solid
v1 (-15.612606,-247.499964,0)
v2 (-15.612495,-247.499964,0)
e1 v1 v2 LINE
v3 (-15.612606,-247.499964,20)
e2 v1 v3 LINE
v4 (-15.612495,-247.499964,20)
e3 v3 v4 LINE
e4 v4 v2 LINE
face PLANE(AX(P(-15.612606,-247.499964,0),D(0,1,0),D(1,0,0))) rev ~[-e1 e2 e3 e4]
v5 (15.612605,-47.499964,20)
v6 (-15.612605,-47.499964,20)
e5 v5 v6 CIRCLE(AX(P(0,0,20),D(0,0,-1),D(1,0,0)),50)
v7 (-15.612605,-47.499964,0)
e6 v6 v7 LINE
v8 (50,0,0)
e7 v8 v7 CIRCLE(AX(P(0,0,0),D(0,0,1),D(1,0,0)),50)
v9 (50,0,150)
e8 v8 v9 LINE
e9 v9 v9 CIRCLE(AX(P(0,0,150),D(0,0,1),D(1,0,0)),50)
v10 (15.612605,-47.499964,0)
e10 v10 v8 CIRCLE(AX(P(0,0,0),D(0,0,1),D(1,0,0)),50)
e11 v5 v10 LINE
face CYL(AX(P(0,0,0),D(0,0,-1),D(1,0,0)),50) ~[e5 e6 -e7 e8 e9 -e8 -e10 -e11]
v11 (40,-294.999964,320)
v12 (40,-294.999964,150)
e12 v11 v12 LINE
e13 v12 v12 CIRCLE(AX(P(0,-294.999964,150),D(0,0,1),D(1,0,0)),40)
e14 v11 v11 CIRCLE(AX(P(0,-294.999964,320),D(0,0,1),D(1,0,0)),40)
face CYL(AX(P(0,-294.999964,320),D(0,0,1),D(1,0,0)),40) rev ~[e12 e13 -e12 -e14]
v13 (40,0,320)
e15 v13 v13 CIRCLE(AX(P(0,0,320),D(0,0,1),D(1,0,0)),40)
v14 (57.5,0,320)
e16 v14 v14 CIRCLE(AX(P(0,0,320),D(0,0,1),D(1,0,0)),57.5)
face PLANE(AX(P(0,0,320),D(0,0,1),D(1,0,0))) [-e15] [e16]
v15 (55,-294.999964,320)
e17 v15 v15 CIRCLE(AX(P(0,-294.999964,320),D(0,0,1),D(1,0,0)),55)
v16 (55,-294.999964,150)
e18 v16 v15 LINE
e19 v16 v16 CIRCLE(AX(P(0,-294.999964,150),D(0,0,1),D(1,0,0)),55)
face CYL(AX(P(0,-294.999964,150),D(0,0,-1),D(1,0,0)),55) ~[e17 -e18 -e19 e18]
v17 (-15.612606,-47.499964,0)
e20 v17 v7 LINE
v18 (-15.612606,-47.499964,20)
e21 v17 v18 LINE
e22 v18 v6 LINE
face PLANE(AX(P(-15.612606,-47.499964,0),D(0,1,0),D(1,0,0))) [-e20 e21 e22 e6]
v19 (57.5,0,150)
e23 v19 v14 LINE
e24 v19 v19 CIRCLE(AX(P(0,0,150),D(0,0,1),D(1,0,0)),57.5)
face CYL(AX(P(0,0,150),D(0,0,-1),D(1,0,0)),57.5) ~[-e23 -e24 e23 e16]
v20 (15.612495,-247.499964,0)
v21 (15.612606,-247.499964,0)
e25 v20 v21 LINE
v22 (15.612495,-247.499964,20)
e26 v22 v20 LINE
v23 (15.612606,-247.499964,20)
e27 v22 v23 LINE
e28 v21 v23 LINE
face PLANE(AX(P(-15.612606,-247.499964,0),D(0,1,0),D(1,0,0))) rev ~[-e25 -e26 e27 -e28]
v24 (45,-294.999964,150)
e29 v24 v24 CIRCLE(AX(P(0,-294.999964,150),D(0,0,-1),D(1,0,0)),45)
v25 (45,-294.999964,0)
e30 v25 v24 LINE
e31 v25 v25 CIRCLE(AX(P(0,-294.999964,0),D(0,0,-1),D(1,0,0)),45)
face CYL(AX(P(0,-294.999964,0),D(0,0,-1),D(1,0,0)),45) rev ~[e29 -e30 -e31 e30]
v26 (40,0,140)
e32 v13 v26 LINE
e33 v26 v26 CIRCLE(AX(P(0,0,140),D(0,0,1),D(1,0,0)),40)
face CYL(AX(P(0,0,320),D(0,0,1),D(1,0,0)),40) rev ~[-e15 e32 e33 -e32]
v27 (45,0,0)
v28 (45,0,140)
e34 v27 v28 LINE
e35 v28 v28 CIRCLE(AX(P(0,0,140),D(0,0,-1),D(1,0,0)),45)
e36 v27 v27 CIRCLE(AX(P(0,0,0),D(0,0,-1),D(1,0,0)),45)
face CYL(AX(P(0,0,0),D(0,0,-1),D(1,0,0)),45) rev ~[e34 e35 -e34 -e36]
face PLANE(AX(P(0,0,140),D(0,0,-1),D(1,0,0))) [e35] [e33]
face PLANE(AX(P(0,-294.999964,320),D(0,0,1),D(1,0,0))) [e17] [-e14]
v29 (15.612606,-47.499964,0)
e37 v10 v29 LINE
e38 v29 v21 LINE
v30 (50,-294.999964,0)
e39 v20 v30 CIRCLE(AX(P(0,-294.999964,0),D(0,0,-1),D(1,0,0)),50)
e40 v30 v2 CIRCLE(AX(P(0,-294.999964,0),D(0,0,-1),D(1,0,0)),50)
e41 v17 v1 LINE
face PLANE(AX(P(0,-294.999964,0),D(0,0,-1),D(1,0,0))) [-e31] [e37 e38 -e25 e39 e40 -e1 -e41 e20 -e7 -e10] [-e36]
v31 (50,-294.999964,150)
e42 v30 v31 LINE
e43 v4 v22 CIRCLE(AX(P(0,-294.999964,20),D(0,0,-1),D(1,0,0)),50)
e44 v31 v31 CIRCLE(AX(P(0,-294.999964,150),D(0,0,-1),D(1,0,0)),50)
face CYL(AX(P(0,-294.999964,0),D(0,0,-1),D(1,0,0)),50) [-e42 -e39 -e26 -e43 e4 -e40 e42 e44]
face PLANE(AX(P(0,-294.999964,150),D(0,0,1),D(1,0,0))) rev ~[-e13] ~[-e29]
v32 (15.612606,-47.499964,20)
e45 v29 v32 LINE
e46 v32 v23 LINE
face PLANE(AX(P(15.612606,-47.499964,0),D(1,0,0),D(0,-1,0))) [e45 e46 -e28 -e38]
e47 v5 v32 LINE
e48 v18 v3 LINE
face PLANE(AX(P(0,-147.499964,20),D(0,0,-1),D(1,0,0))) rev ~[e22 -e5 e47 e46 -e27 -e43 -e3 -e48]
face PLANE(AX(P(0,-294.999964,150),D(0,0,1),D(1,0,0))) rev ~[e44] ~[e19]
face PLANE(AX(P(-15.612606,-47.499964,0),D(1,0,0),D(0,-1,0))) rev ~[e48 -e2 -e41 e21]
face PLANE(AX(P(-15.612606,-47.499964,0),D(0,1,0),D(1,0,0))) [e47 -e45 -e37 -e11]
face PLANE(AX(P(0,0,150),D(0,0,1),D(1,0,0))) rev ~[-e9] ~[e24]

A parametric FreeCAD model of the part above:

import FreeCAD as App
import Part
import Sketcher

V = App.Vector


def add_polygon(sketch, points):
    """Adds a closed chain of lines whose ends are joined by coincident constraints."""
    first, n = sketch.GeometryCount, len(points)
    for a, b in zip(points, points[1:] + points[:1]):
        sketch.addGeometry(Part.LineSegment(App.Vector(*a, 0), App.Vector(*b, 0)), False)
    for i in range(n):
        sketch.addConstraint(Sketcher.Constraint("Coincident", first + i, 2, first + (i + 1) % n, 1))

doc = App.newDocument("Part")
params = doc.addObject("Spreadsheet::Sheet", "Params")
for row, (alias, value) in enumerate([
    ("sketch1_diameter", "100 mm"),
    ("pad1_length", "150 mm"),
    ("sketch2_diameter", "90 mm"),
    ("pocket1_length", "140 mm"),
    ("sketch3_diameter", "115 mm"),
    ("pad2_length", "170 mm"),
    ("sketch4_diameter", "80 mm"),
    ("pocket2_length", "383 mm"),
    ("sketch5_height", "200 mm"),
    ("pad3_length", "20 mm"),
    ("sketch6_diameter", "100 mm"),
    ("pad4_length", "150 mm"),
    ("sketch7_diameter", "90 mm"),
    ("pocket3_length", "150 mm"),
    ("sketch8_diameter", "110 mm"),
    ("pad5_length", "170 mm"),
    ("sketch9_diameter", "80 mm"),
    ("pocket4_length", "5000 mm"),
], start=1):
    params.set(f"A{row}", alias)
    params.set(f"B{row}", "=" + value)
    params.setAlias(f"B{row}", alias)

body = doc.addObject("PartDesign::Body", "Body")

# Sketch on XY plane
sketch1 = body.newObject("Sketcher::SketchObject", "Sketch")
sketch1.AttachmentSupport = (doc.getObject("XY_Plane"), [""])
sketch1.MapMode = "FlatFace"
sketch1.addGeometry(Part.Circle(V(0, 0, 0), V(0, 0, 1), 50), False)
sketch1.addConstraint([
    Sketcher.Constraint("Coincident", 0, 3, -1, 1),
    Sketcher.Constraint("Diameter", 0, 100.0),
])
sketch1.setExpression("Constraints[1]", "Params.sketch1_diameter")
pad1 = body.newObject("PartDesign::Pad", "Pad")
pad1.Profile = sketch1
pad1.setExpression("Length", "Params.pad1_length")

# Sketch on XY plane
sketch2 = body.newObject("Sketcher::SketchObject", "Sketch001")
sketch2.AttachmentSupport = (doc.getObject("XY_Plane"), [""])
sketch2.MapMode = "FlatFace"
sketch2.addGeometry(Part.Circle(V(0, 0, 0), V(0, 0, 1), 45), False)
sketch2.addConstraint([
    Sketcher.Constraint("Coincident", 0, 3, -1, 1),
    Sketcher.Constraint("Diameter", 0, 90.0),
])
sketch2.setExpression("Constraints[1]", "Params.sketch2_diameter")
pocket1 = body.newObject("PartDesign::Pocket", "Pocket")
pocket1.Profile = sketch2
pocket1.setExpression("Length", "Params.pocket1_length")
pocket1.Reversed = True

# Sketch on XY plane
sketch3 = body.newObject("Sketcher::SketchObject", "Sketch002")
sketch3.AttachmentSupport = (doc.getObject("XY_Plane"), [""])
sketch3.MapMode = "FlatFace"
sketch3.AttachmentOffset = App.Placement(V(0, 0, 150), App.Rotation())
sketch3.addGeometry(Part.Circle(V(0, 0, 0), V(0, 0, 1), 58), False)
sketch3.addConstraint([
    Sketcher.Constraint("Coincident", 0, 3, -1, 1),
    Sketcher.Constraint("Diameter", 0, 115.0),
])
sketch3.setExpression("Constraints[1]", "Params.sketch3_diameter")
pad2 = body.newObject("PartDesign::Pad", "Pad001")
pad2.Profile = sketch3
pad2.setExpression("Length", "Params.pad2_length")

# Sketch on XY plane
sketch4 = body.newObject("Sketcher::SketchObject", "Sketch003")
sketch4.AttachmentSupport = (doc.getObject("XY_Plane"), [""])
sketch4.MapMode = "FlatFace"
sketch4.AttachmentOffset = App.Placement(V(0, 0, 320), App.Rotation())
sketch4.addGeometry(Part.Circle(V(0, 0, 0), V(0, 0, 1), 40), False)
sketch4.addConstraint([
    Sketcher.Constraint("Coincident", 0, 3, -1, 1),
    Sketcher.Constraint("Diameter", 0, 80.0),
])
sketch4.setExpression("Constraints[1]", "Params.sketch4_diameter")
pocket2 = body.newObject("PartDesign::Pocket", "Pocket001")
pocket2.Profile = sketch4
pocket2.setExpression("Length", "Params.pocket2_length")

# Sketch on XY plane
sketch5 = body.newObject("Sketcher::SketchObject", "Sketch004")
sketch5.AttachmentSupport = (doc.getObject("XY_Plane"), [""])
sketch5.MapMode = "FlatFace"
add_polygon(sketch5, [(-16, -247), (-16, -47), (16, -47), (16, -247)])  # lines 0-3
sketch5.addConstraint([
    Sketcher.Constraint("Vertical", 0),
    Sketcher.Constraint("Horizontal", 1),
    Sketcher.Constraint("Vertical", 2),
    Sketcher.Constraint("Horizontal", 3),
    Sketcher.Constraint("DistanceY", 0, 1, 0, 2, 200.0),
    Sketcher.Constraint("DistanceX", 1, 1, 1, 2, 31.225212),
    Sketcher.Constraint("DistanceX", 0, 2, -1, 1, 15.612606),
    Sketcher.Constraint("DistanceY", 0, 2, -1, 1, 47.499964),
])
sketch5.setExpression("Constraints[8]", "Params.sketch5_height")
pad3 = body.newObject("PartDesign::Pad", "Pad002")
pad3.Profile = sketch5
pad3.setExpression("Length", "Params.pad3_length")

# Sketch on XY plane
sketch6 = body.newObject("Sketcher::SketchObject", "Sketch005")
sketch6.AttachmentSupport = (doc.getObject("XY_Plane"), [""])
sketch6.MapMode = "FlatFace"
sketch6.addGeometry(Part.Circle(V(0, -294.999964, 0), V(0, 0, 1), 50), False)
sketch6.addConstraint([
    Sketcher.Constraint("PointOnObject", 0, 3, -2),
    Sketcher.Constraint("Diameter", 0, 100.0),
    Sketcher.Constraint("DistanceY", 0, 3, -1, 1, 294.999964),
])
sketch6.setExpression("Constraints[1]", "Params.sketch6_diameter")
pad4 = body.newObject("PartDesign::Pad", "Pad003")
pad4.Profile = sketch6
pad4.setExpression("Length", "Params.pad4_length")

# Sketch on XY plane
sketch7 = body.newObject("Sketcher::SketchObject", "Sketch006")
sketch7.AttachmentSupport = (doc.getObject("XY_Plane"), [""])
sketch7.MapMode = "FlatFace"
sketch7.addGeometry(Part.Circle(V(0, -294.999964, 0), V(0, 0, 1), 45), False)
sketch7.addConstraint([
    Sketcher.Constraint("PointOnObject", 0, 3, -2),
    Sketcher.Constraint("Diameter", 0, 90.0),
    Sketcher.Constraint("DistanceY", 0, 3, -1, 1, 294.999964),
])
sketch7.setExpression("Constraints[1]", "Params.sketch7_diameter")
pocket3 = body.newObject("PartDesign::Pocket", "Pocket002")
pocket3.Profile = sketch7
pocket3.setExpression("Length", "Params.pocket3_length")
pocket3.Reversed = True

# Sketch on XY plane
sketch8 = body.newObject("Sketcher::SketchObject", "Sketch007")
sketch8.AttachmentSupport = (doc.getObject("XY_Plane"), [""])
sketch8.MapMode = "FlatFace"
sketch8.AttachmentOffset = App.Placement(V(0, 0, 150), App.Rotation())
sketch8.addGeometry(Part.Circle(V(0, -294.999964, 0), V(0, 0, 1), 55), False)
sketch8.addConstraint([
    Sketcher.Constraint("PointOnObject", 0, 3, -2),
    Sketcher.Constraint("Diameter", 0, 110.0),
    Sketcher.Constraint("DistanceY", 0, 3, -1, 1, 294.999964),
])
sketch8.setExpression("Constraints[1]", "Params.sketch8_diameter")
pad5 = body.newObject("PartDesign::Pad", "Pad004")
pad5.Profile = sketch8
pad5.setExpression("Length", "Params.pad5_length")

# Sketch on XY plane
sketch9 = body.newObject("Sketcher::SketchObject", "Sketch008")
sketch9.AttachmentSupport = (doc.getObject("XY_Plane"), [""])
sketch9.MapMode = "FlatFace"
sketch9.AttachmentOffset = App.Placement(V(0, 0, 320), App.Rotation())
sketch9.addGeometry(Part.Circle(V(0, -294.999964, 0), V(0, 0, 1), 40), False)
sketch9.addConstraint([
    Sketcher.Constraint("PointOnObject", 0, 3, -2),
    Sketcher.Constraint("Diameter", 0, 80.0),
    Sketcher.Constraint("DistanceY", 0, 3, -1, 1, 294.999964),
])
sketch9.setExpression("Constraints[1]", "Params.sketch9_diameter")
pocket4 = body.newObject("PartDesign::Pocket", "Pocket003")
pocket4.Profile = sketch9
pocket4.setExpression("Length", "Params.pocket4_length")

doc.recompute()
